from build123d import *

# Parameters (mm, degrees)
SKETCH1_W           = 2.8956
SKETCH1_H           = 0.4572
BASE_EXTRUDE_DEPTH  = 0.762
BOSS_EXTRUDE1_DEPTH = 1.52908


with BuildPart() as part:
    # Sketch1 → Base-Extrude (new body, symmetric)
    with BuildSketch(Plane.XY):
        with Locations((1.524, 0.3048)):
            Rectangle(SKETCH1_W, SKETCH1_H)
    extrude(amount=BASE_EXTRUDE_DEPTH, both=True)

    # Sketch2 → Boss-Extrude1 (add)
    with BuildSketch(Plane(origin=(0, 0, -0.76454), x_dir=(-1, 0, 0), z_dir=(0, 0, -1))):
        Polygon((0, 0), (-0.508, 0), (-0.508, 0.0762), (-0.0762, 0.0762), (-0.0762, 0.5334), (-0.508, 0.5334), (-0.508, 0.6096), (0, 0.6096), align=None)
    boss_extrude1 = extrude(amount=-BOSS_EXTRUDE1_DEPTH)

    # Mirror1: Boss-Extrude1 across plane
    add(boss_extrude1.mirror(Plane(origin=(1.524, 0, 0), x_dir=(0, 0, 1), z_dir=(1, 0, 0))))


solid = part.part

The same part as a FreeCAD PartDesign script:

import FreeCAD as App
import Part
import Sketcher

V = App.Vector
Q = App.Units.Quantity

doc = App.newDocument("Part")
body = doc.addObject("PartDesign::Body", "Body")

# Sketch on XY plane
sketch1 = body.newObject("Sketcher::SketchObject", "Sketch")
sketch1.AttachmentSupport = (doc.getObject("XY_Plane"), [""])
sketch1.MapMode = "FlatFace"
sketch1.addGeometry(Part.LineSegment(V(0.0762, 0.5334, 0), V(0.0762, 0.0762, 0)), False)
sketch1.addGeometry(Part.LineSegment(V(0.0762, 0.0762, 0), V(2.9718, 0.0762, 0)), False)
sketch1.addGeometry(Part.LineSegment(V(2.9718, 0.0762, 0), V(2.9718, 0.5334, 0)), False)
sketch1.addGeometry(Part.LineSegment(V(2.9718, 0.5334, 0), V(0.0762, 0.5334, 0)), False)
sketch1.addConstraint(Sketcher.Constraint("Coincident", 0, 2, 1, 1))
sketch1.addConstraint(Sketcher.Constraint("Coincident", 1, 2, 2, 1))
sketch1.addConstraint(Sketcher.Constraint("Coincident", 2, 2, 3, 1))
sketch1.addConstraint(Sketcher.Constraint("Coincident", 3, 2, 0, 1))
sketch1.addConstraint(Sketcher.Constraint("Vertical", 0))
sketch1.addConstraint(Sketcher.Constraint("Horizontal", 1))
sketch1.addConstraint(Sketcher.Constraint("Vertical", 2))
sketch1.addConstraint(Sketcher.Constraint("Horizontal", 3))
sketch1.addConstraint(Sketcher.Constraint("DistanceX", 1, 1, 1, 2, Q("0.114 in")))
sketch1.addConstraint(Sketcher.Constraint("DistanceY", 0, 2, 0, 1, Q("0.018 in")))
sketch1.addConstraint(Sketcher.Constraint("DistanceX", -1, 1, 0, 2, Q("0.003 in")))
sketch1.addConstraint(Sketcher.Constraint("DistanceY", -1, 1, 0, 2, Q("0.003 in")))
pad1 = body.newObject("PartDesign::Pad", "Pad")
pad1.Profile = sketch1
pad1.Length = Q("0.06 in")
pad1.Midplane = True

# Sketch on XY plane
sketch2 = body.newObject("Sketcher::SketchObject", "Sketch001")
sketch2.AttachmentSupport = (doc.getObject("XY_Plane"), [""])
sketch2.MapMode = "FlatFace"
sketch2.AttachmentOffset = App.Placement(V(0, 0, -0.0301 * 25.4), App.Rotation())
sketch2.addGeometry(Part.LineSegment(V(0.508, 0, 0), V(0, 0, 0)), False)
sketch2.addGeometry(Part.LineSegment(V(0, 0, 0), V(0, 0.6096, 0)), False)
sketch2.addGeometry(Part.LineSegment(V(0, 0.6096, 0), V(0.508, 0.6096, 0)), False)
sketch2.addGeometry(Part.LineSegment(V(0.508, 0.6096, 0), V(0.508, 0.5334, 0)), False)
sketch2.addGeometry(Part.LineSegment(V(0.508, 0.5334, 0), V(0.0762, 0.5334, 0)), False)
sketch2.addGeometry(Part.LineSegment(V(0.0762, 0.5334, 0), V(0.0762, 0.0762, 0)), False)
sketch2.addGeometry(Part.LineSegment(V(0.0762, 0.0762, 0), V(0.508, 0.0762, 0)), False)
sketch2.addGeometry(Part.LineSegment(V(0.508, 0.0762, 0), V(0.508, 0, 0)), False)
sketch2.addConstraint(Sketcher.Constraint("Coincident", 0, 2, 1, 1))
sketch2.addConstraint(Sketcher.Constraint("Coincident", 1, 2, 2, 1))
sketch2.addConstraint(Sketcher.Constraint("Coincident", 2, 2, 3, 1))
sketch2.addConstraint(Sketcher.Constraint("Coincident", 3, 2, 4, 1))
sketch2.addConstraint(Sketcher.Constraint("Coincident", 4, 2, 5, 1))
sketch2.addConstraint(Sketcher.Constraint("Coincident", 5, 2, 6, 1))
sketch2.addConstraint(Sketcher.Constraint("Coincident", 6, 2, 7, 1))
sketch2.addConstraint(Sketcher.Constraint("Coincident", 7, 2, 0, 1))
sketch2.addConstraint(Sketcher.Constraint("Horizontal", 0))
sketch2.addConstraint(Sketcher.Constraint("Vertical", 1))
sketch2.addConstraint(Sketcher.Constraint("Horizontal", 2))
sketch2.addConstraint(Sketcher.Constraint("Vertical", 3))
sketch2.addConstraint(Sketcher.Constraint("Horizontal", 4))
sketch2.addConstraint(Sketcher.Constraint("Vertical", 5))
sketch2.addConstraint(Sketcher.Constraint("Horizontal", 6))
sketch2.addConstraint(Sketcher.Constraint("Vertical", 7))
sketch2.addConstraint(Sketcher.Constraint("Coincident", 0, 2, -1, 1))
sketch2.addConstraint(Sketcher.Constraint("Vertical", 3, 2, 6, 2))
sketch2.addConstraint(Sketcher.Constraint("Equal", 3, 7))
sketch2.addConstraint(Sketcher.Constraint("DistanceX", 0, 2, 0, 1, Q("0.02 in")))
sketch2.addConstraint(Sketcher.Constraint("DistanceX", 4, 2, 4, 1, Q("0.017 in")))
sketch2.addConstraint(Sketcher.Constraint("DistanceY", 1, 1, 1, 2, Q("0.024 in")))
sketch2.addConstraint(Sketcher.Constraint("DistanceY", 3, 2, 3, 1, Q("0.003 in")))
pad2 = body.newObject("PartDesign::Pad", "Pad001")
pad2.Profile = sketch2
pad2.Length = Q("0.0602 in")
doc.recompute()

datumplane = body.newObject("PartDesign::Plane", "DatumPlane")
datumplane.AttachmentSupport = (doc.getObject("YZ_Plane"), [""])
datumplane.MapMode = "FlatFace"
datumplane.AttachmentOffset = App.Placement(V(0, 0, 0.06 * 25.4), App.Rotation())
mirrored = body.newObject("PartDesign::Mirrored", "Mirrored")
mirrored.Originals = [pad2]
mirrored.MirrorPlane = (datumplane, [""])
body.Tip = mirrored

doc.recompute()
